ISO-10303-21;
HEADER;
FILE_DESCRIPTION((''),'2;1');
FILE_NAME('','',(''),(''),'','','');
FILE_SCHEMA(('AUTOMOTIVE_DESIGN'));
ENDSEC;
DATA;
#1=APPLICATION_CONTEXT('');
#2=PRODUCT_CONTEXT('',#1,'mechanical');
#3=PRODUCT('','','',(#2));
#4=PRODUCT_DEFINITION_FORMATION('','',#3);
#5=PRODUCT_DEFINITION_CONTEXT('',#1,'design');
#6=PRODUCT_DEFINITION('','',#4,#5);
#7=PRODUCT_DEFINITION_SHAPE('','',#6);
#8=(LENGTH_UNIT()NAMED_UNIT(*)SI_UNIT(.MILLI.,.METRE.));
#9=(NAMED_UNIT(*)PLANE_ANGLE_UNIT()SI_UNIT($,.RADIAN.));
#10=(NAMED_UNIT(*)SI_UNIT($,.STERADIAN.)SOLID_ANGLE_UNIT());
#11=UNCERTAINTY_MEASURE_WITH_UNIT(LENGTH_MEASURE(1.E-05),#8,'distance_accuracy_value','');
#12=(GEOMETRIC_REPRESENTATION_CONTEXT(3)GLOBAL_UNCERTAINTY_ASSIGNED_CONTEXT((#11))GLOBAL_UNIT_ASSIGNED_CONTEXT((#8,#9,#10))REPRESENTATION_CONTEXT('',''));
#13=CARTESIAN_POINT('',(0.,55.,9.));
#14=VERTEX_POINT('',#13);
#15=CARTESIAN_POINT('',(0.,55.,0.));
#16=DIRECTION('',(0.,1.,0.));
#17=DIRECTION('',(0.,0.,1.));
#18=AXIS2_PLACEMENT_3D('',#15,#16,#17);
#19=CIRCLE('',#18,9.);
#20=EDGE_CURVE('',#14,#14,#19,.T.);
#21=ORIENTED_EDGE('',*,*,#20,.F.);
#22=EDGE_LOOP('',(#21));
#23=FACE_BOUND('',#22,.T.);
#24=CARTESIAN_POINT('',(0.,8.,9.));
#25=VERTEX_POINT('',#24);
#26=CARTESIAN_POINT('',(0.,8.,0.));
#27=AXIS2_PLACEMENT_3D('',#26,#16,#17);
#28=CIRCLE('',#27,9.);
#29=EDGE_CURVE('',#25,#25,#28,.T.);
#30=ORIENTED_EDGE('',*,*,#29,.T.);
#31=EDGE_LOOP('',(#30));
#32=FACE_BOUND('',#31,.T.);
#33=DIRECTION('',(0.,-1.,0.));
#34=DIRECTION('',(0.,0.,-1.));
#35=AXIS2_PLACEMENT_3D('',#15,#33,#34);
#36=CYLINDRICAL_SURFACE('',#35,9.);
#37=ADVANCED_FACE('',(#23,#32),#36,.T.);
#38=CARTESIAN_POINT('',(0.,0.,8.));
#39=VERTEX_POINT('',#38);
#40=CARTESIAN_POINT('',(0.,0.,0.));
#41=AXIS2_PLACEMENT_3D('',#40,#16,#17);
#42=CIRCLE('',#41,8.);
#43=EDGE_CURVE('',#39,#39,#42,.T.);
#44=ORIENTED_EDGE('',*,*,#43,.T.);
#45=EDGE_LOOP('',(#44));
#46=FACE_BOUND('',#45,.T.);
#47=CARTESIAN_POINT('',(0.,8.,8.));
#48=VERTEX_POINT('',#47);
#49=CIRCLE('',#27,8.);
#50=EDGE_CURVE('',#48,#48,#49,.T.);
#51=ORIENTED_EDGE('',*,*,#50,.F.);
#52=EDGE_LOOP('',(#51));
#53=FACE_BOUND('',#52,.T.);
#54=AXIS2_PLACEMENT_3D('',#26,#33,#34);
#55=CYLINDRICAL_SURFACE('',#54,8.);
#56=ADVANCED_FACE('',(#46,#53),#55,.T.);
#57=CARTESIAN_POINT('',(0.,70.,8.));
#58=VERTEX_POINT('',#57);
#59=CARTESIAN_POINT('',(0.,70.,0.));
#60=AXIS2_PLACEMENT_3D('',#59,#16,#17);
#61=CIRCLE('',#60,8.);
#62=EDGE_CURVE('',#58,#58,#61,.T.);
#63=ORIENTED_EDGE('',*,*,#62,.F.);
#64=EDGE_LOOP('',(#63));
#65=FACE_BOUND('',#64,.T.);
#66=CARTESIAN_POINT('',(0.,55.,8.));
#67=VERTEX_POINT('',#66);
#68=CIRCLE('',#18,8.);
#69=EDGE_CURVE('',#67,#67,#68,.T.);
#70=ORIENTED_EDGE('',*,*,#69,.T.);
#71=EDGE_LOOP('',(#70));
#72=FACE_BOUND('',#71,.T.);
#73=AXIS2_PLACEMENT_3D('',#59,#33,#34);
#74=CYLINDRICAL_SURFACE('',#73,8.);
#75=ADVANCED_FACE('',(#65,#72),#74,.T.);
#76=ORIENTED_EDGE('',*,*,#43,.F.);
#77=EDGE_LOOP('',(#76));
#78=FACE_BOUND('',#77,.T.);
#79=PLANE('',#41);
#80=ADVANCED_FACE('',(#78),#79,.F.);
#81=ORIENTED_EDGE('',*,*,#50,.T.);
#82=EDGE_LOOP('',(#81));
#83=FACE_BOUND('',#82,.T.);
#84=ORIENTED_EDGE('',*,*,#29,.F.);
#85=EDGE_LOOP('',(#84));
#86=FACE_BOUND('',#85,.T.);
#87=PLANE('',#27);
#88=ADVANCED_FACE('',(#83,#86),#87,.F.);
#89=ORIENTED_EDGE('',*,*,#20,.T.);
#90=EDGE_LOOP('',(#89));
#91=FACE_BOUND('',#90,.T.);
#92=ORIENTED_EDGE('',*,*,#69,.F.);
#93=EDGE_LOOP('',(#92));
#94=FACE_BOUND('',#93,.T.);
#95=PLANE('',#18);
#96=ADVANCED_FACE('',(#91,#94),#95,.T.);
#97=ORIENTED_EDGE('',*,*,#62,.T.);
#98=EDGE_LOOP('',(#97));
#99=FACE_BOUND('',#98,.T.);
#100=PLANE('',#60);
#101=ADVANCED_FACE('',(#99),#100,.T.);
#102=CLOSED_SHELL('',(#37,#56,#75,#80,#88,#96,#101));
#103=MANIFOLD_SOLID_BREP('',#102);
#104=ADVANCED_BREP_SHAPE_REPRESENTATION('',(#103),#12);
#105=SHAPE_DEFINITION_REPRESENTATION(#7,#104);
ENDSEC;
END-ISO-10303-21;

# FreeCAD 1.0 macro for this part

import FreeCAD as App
import Part
import Sketcher

V = App.Vector
Q = App.Units.Quantity

doc = App.newDocument("Part")
body = doc.addObject("PartDesign::Body", "Body")

# Sketch on XZ plane
sketch1 = body.newObject("Sketcher::SketchObject", "Sketch")
sketch1.AttachmentSupport = (doc.getObject("XZ_Plane"), [""])
sketch1.MapMode = "FlatFace"
sketch1.addGeometry(Part.Circle(V(0, 0, 0), V(0, 0, 1), 8), False)
sketch1.addConstraint([
    Sketcher.Constraint("Coincident", 0, 3, -1, 1),
    Sketcher.Constraint("Diameter", 0, Q("16 mm")),
])
pad1 = body.newObject("PartDesign::Pad", "Pad")
pad1.Profile = sketch1
pad1.Length = 8
pad1.Reversed = True

# Sketch on XZ plane
sketch2 = body.newObject("Sketcher::SketchObject", "Sketch001")
sketch2.AttachmentSupport = (doc.getObject("XZ_Plane"), [""])
sketch2.MapMode = "FlatFace"
sketch2.AttachmentOffset = App.Placement(V(0, 0, -8), App.Rotation())
sketch2.addGeometry(Part.Circle(V(0, 0, 0), V(0, 0, 1), 9), False)
sketch2.addConstraint([
    Sketcher.Constraint("Coincident", 0, 3, -1, 1),
    Sketcher.Constraint("Diameter", 0, Q("18 mm")),
])
pad2 = body.newObject("PartDesign::Pad", "Pad001")
pad2.Profile = sketch2
pad2.Length = 47
pad2.Reversed = True

# Sketch on XZ plane
sketch3 = body.newObject("Sketcher::SketchObject", "Sketch002")
sketch3.AttachmentSupport = (doc.getObject("XZ_Plane"), [""])
sketch3.MapMode = "FlatFace"
sketch3.AttachmentOffset = App.Placement(V(0, 0, -55), App.Rotation())
sketch3.addGeometry(Part.Circle(V(0, 0, 0), V(0, 0, 1), 8), False)
sketch3.addConstraint([
    Sketcher.Constraint("Coincident", 0, 3, -1, 1),
    Sketcher.Constraint("Diameter", 0, Q("16 mm")),
])
pad3 = body.newObject("PartDesign::Pad", "Pad002")
pad3.Profile = sketch3
pad3.Length = 15
pad3.Reversed = True

doc.recompute()
